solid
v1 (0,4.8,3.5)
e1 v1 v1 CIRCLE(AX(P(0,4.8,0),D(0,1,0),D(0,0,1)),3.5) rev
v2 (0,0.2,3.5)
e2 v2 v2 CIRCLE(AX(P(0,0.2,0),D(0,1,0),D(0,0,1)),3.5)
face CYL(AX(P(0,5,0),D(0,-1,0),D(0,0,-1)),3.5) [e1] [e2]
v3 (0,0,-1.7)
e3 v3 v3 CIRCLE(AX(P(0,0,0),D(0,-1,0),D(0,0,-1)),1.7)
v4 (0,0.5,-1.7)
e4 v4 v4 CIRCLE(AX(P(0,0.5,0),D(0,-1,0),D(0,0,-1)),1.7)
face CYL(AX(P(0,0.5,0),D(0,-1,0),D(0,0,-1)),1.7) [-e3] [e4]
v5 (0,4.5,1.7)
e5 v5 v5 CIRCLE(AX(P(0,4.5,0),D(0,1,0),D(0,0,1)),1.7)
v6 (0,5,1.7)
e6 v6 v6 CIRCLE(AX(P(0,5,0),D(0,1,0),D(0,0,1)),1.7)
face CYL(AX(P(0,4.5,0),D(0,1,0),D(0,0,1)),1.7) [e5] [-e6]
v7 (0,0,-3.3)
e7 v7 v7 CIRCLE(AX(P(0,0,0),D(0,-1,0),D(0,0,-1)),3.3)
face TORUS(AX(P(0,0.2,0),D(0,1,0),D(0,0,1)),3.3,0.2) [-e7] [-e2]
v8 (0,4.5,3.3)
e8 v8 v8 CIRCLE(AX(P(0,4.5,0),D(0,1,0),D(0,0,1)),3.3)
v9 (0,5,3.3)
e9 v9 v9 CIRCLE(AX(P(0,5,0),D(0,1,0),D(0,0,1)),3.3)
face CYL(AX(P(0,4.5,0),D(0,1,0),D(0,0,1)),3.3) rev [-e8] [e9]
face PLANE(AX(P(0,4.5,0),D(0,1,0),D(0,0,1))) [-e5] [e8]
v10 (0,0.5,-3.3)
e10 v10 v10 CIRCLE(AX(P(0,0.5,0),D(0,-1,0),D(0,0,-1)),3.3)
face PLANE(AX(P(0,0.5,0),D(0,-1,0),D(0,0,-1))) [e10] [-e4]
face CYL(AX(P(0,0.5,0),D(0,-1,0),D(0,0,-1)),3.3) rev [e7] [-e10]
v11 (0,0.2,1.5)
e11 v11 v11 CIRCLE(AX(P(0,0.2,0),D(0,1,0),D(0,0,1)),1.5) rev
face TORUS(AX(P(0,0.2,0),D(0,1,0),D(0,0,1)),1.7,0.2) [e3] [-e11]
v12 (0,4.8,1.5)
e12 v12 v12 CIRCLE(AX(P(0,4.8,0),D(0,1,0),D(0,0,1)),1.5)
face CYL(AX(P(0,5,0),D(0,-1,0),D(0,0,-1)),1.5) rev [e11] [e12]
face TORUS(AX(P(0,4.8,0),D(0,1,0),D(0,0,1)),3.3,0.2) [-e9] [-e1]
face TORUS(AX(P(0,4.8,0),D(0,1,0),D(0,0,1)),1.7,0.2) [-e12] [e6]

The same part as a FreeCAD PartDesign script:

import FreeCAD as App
import Part
import Sketcher


def edges_at(feature, points):
    """Names of the edges that pass closest to the given points."""
    edges = feature.Shape.Edges
    near = lambda p: min(range(len(edges)), key=lambda i: edges[i].distToShape(Part.Vertex(*p))[0])
    return sorted({f"Edge{near(p) + 1}" for p in points})

doc = App.newDocument("Part")
body = doc.addObject("PartDesign::Body", "Body")

# Sketch on XZ plane
sketch1 = doc.addObject("Sketcher::SketchObject", "Sketch")
body.addObject(sketch1)
sketch1.AttachmentSupport = (doc.XZ_Plane, [""])
sketch1.MapMode = "FlatFace"
sketch1.addGeometry(Part.Circle(App.Vector(0, 0, 0), App.Vector(0, 0, 1), 3.5), False)
sketch1.addGeometry(Part.Circle(App.Vector(0, 0, 0), App.Vector(0, 0, 1), 1.5), False)
sketch1.addConstraint(Sketcher.Constraint("Coincident", 0, 3, -1, 1))
sketch1.addConstraint(Sketcher.Constraint("Coincident", 1, 3, -1, 1))
sketch1.addConstraint(Sketcher.Constraint("Diameter", 0, 7.0))
sketch1.addConstraint(Sketcher.Constraint("Diameter", 1, 3.0))
pad1 = doc.addObject("PartDesign::Pad", "Pad")
body.addObject(pad1)
pad1.Profile = sketch1
pad1.Length = 5
pad1.Reversed = True
doc.recompute()

fillet = doc.addObject("PartDesign::Fillet", "Fillet")
body.addObject(fillet)
fillet.Base = (pad1, edges_at(pad1, [
    (-3.5, 0, 0),
    (-3.5, 5, 0),
    (-1.5, 0, 0),
    (-1.5, 5, 0),
]))
fillet.Radius = 0.2

# Sketch on XZ plane
sketch2 = doc.addObject("Sketcher::SketchObject", "Sketch001")
body.addObject(sketch2)
sketch2.AttachmentSupport = (doc.XZ_Plane, [""])
sketch2.MapMode = "FlatFace"
sketch2.AttachmentOffset = App.Placement(App.Vector(0, 0, -5), App.Rotation())
sketch2.addGeometry(Part.Circle(App.Vector(0, 0, 0), App.Vector(0, 0, 1), 3.3), False)
sketch2.addGeometry(Part.Circle(App.Vector(0, 0, 0), App.Vector(0, 0, 1), 1.7), False)
sketch2.addConstraint(Sketcher.Constraint("Coincident", 0, 3, -1, 1))
sketch2.addConstraint(Sketcher.Constraint("Coincident", 1, 3, -1, 1))
sketch2.addConstraint(Sketcher.Constraint("Diameter", 0, 6.6))
sketch2.addConstraint(Sketcher.Constraint("Diameter", 1, 3.4))
pocket1 = doc.addObject("PartDesign::Pocket", "Pocket")
body.addObject(pocket1)
pocket1.Profile = sketch2
pocket1.Length = 0.5
pocket1.Reversed = True

# Sketch on XZ plane
sketch3 = doc.addObject("Sketcher::SketchObject", "Sketch002")
body.addObject(sketch3)
sketch3.AttachmentSupport = (doc.XZ_Plane, [""])
sketch3.MapMode = "FlatFace"
sketch3.addGeometry(Part.Circle(App.Vector(0, 0, 0), App.Vector(0, 0, 1), 3.3), False)
sketch3.addGeometry(Part.Circle(App.Vector(0, 0, 0), App.Vector(0, 0, 1), 1.7), False)
sketch3.addConstraint(Sketcher.Constraint("Coincident", 0, 3, -1, 1))
sketch3.addConstraint(Sketcher.Constraint("Coincident", 1, 3, -1, 1))
sketch3.addConstraint(Sketcher.Constraint("Diameter", 0, 6.6))
sketch3.addConstraint(Sketcher.Constraint("Diameter", 1, 3.4))
pocket2 = doc.addObject("PartDesign::Pocket", "Pocket001")
body.addObject(pocket2)
pocket2.Profile = sketch3
pocket2.Length = 0.5

doc.recompute()
